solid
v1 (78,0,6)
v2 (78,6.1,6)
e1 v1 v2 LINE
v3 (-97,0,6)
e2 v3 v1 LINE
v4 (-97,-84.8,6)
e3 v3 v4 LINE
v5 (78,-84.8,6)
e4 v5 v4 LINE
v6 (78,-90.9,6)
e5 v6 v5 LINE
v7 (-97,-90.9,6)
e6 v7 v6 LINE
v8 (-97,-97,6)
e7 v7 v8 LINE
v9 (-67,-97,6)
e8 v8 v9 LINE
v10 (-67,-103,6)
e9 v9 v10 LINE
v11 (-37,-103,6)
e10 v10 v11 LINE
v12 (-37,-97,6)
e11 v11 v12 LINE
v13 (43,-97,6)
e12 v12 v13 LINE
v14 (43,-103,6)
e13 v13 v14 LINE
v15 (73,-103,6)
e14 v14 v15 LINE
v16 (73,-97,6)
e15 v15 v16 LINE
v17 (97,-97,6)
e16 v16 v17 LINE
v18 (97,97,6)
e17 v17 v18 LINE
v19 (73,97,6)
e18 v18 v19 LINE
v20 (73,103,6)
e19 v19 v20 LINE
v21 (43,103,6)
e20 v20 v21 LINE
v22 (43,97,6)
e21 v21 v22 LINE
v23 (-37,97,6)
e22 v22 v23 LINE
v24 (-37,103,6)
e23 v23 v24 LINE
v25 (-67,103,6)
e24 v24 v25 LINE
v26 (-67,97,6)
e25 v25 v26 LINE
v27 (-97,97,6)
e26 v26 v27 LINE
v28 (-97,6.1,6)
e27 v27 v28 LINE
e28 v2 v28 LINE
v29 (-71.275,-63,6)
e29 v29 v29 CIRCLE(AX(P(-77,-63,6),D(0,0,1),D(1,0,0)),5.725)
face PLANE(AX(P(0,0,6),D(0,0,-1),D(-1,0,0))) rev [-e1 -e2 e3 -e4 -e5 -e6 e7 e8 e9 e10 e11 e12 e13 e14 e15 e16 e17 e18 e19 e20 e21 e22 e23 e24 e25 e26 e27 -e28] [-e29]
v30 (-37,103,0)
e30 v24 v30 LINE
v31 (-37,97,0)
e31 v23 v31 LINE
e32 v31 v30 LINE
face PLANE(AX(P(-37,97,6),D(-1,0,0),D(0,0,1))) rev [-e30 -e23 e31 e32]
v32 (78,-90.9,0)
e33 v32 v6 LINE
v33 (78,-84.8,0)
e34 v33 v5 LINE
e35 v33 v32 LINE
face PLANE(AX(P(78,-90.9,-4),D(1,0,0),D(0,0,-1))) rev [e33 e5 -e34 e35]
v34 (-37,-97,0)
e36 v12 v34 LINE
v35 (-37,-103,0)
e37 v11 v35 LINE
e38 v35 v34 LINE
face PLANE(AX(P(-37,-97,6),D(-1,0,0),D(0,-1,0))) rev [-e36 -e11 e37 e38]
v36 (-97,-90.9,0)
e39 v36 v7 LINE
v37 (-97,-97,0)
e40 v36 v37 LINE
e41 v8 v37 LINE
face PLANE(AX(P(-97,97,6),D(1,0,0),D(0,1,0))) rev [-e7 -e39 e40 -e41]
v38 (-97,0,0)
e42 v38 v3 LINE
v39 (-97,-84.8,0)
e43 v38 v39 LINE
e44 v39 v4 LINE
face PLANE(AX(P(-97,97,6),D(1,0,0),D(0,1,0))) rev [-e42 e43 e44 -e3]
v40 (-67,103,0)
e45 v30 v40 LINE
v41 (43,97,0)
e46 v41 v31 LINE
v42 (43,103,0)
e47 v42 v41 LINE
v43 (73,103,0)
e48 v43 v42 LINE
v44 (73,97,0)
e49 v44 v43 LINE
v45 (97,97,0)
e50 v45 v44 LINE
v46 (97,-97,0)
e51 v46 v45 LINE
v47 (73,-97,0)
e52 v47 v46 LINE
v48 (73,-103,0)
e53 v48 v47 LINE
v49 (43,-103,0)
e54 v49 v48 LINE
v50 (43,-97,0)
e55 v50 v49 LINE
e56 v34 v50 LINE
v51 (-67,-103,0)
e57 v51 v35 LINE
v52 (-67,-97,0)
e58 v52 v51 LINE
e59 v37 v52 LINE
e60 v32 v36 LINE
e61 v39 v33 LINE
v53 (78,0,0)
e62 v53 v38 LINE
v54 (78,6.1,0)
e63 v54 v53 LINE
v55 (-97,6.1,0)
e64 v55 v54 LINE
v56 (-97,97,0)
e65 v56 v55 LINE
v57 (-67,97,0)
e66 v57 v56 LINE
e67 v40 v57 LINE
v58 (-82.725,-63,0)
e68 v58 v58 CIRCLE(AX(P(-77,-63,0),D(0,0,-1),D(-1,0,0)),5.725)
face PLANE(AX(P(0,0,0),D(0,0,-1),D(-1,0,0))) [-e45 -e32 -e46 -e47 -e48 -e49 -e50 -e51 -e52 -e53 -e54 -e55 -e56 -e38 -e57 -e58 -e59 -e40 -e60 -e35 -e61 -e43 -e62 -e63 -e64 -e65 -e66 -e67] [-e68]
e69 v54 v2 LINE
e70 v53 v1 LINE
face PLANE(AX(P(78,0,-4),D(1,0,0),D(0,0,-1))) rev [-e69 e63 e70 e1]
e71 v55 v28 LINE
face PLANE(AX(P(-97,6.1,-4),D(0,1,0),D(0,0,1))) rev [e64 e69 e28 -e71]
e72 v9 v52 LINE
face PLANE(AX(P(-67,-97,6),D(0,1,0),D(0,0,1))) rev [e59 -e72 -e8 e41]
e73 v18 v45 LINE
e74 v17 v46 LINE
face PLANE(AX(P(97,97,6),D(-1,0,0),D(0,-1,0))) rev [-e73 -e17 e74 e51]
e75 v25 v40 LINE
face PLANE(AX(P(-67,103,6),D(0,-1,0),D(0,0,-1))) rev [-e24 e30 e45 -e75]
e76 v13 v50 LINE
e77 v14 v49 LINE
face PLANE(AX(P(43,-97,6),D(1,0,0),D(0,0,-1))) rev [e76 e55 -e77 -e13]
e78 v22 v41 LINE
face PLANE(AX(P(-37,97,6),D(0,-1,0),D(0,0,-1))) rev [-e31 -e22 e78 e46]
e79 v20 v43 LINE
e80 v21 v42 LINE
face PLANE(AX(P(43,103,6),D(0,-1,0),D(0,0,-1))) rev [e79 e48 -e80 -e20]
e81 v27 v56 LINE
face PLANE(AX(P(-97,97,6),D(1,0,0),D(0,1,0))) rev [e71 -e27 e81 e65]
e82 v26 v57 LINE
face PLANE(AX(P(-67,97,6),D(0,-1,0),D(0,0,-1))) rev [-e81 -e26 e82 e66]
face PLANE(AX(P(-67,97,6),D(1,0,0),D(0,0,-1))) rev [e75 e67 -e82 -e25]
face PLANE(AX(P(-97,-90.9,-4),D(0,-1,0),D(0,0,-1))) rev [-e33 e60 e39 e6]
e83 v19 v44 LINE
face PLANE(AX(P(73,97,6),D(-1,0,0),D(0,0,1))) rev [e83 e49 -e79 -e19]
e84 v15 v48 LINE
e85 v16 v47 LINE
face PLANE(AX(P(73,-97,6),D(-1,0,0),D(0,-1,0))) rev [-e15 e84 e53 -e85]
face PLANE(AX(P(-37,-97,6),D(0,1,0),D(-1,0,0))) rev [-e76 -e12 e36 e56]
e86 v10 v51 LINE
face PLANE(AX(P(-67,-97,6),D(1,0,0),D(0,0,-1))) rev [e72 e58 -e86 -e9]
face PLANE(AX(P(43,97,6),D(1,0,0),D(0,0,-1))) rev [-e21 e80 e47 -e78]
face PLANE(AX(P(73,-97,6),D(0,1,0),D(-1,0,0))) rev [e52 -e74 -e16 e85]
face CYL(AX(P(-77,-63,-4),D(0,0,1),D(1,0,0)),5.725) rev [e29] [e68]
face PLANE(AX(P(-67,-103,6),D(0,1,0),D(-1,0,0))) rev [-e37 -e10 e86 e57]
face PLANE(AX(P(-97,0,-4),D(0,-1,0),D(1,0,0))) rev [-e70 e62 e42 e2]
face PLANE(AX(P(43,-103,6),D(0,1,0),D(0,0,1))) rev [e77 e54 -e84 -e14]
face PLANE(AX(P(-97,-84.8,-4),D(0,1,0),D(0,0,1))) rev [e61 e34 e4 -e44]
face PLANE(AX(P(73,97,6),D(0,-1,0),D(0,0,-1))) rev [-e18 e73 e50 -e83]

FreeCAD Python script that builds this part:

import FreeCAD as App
import Part
import Sketcher
from FreeCAD import Vector
Q = App.Units.Quantity

doc = App.newDocument("Part")
body = doc.addObject("PartDesign::Body", "Body")

# Sketch on XY plane
sketch1 = body.newObject("Sketcher::SketchObject", "Sketch")
sketch1.AttachmentSupport = (doc.getObject("XY_Plane"), [""])
sketch1.MapMode = "FlatFace"
sketch1.addGeometry(Part.LineSegment(Vector(-97, -97, 0), Vector(-67, -97, 0)), False)
sketch1.addGeometry(Part.LineSegment(Vector(-67, -97, 0), Vector(-67, -103, 0)), False)
sketch1.addGeometry(Part.LineSegment(Vector(-67, -103, 0), Vector(-37, -103, 0)), False)
sketch1.addGeometry(Part.LineSegment(Vector(-37, -103, 0), Vector(-37, -97, 0)), False)
sketch1.addGeometry(Part.LineSegment(Vector(-37, -97, 0), Vector(43, -97, 0)), False)
sketch1.addGeometry(Part.LineSegment(Vector(43, -97, 0), Vector(43, -103, 0)), False)
sketch1.addGeometry(Part.LineSegment(Vector(43, -103, 0), Vector(73, -103, 0)), False)
sketch1.addGeometry(Part.LineSegment(Vector(73, -103, 0), Vector(73, -97, 0)), False)
sketch1.addGeometry(Part.LineSegment(Vector(73, -97, 0), Vector(97, -97, 0)), False)
sketch1.addGeometry(Part.LineSegment(Vector(97, -97, 0), Vector(97, 97, 0)), False)
sketch1.addGeometry(Part.LineSegment(Vector(97, 97, 0), Vector(73, 97, 0)), False)
sketch1.addGeometry(Part.LineSegment(Vector(73, 97, 0), Vector(73, 103, 0)), False)
sketch1.addGeometry(Part.LineSegment(Vector(73, 103, 0), Vector(43, 103, 0)), False)
sketch1.addGeometry(Part.LineSegment(Vector(43, 103, 0), Vector(43, 97, 0)), False)
sketch1.addGeometry(Part.LineSegment(Vector(43, 97, 0), Vector(-37, 97, 0)), False)
sketch1.addGeometry(Part.LineSegment(Vector(-37, 97, 0), Vector(-37, 103, 0)), False)
sketch1.addGeometry(Part.LineSegment(Vector(-37, 103, 0), Vector(-67, 103, 0)), False)
sketch1.addGeometry(Part.LineSegment(Vector(-67, 103, 0), Vector(-67, 97, 0)), False)
sketch1.addGeometry(Part.LineSegment(Vector(-67, 97, 0), Vector(-97, 97, 0)), False)
sketch1.addGeometry(Part.LineSegment(Vector(-97, 97, 0), Vector(-97, -97, 0)), False)
sketch1.addConstraint(Sketcher.Constraint("Coincident", 0, 2, 1, 1))
sketch1.addConstraint(Sketcher.Constraint("Coincident", 1, 2, 2, 1))
sketch1.addConstraint(Sketcher.Constraint("Coincident", 2, 2, 3, 1))
sketch1.addConstraint(Sketcher.Constraint("Coincident", 3, 2, 4, 1))
sketch1.addConstraint(Sketcher.Constraint("Coincident", 4, 2, 5, 1))
sketch1.addConstraint(Sketcher.Constraint("Coincident", 5, 2, 6, 1))
sketch1.addConstraint(Sketcher.Constraint("Coincident", 6, 2, 7, 1))
sketch1.addConstraint(Sketcher.Constraint("Coincident", 7, 2, 8, 1))
sketch1.addConstraint(Sketcher.Constraint("Coincident", 8, 2, 9, 1))
sketch1.addConstraint(Sketcher.Constraint("Coincident", 9, 2, 10, 1))
sketch1.addConstraint(Sketcher.Constraint("Coincident", 10, 2, 11, 1))
sketch1.addConstraint(Sketcher.Constraint("Coincident", 11, 2, 12, 1))
sketch1.addConstraint(Sketcher.Constraint("Coincident", 12, 2, 13, 1))
sketch1.addConstraint(Sketcher.Constraint("Coincident", 13, 2, 14, 1))
sketch1.addConstraint(Sketcher.Constraint("Coincident", 14, 2, 15, 1))
sketch1.addConstraint(Sketcher.Constraint("Coincident", 15, 2, 16, 1))
sketch1.addConstraint(Sketcher.Constraint("Coincident", 16, 2, 17, 1))
sketch1.addConstraint(Sketcher.Constraint("Coincident", 17, 2, 18, 1))
sketch1.addConstraint(Sketcher.Constraint("Coincident", 18, 2, 19, 1))
sketch1.addConstraint(Sketcher.Constraint("Coincident", 19, 2, 0, 1))
sketch1.addConstraint(Sketcher.Constraint("Horizontal", 0))
sketch1.addConstraint(Sketcher.Constraint("Vertical", 1))
sketch1.addConstraint(Sketcher.Constraint("Horizontal", 2))
sketch1.addConstraint(Sketcher.Constraint("Vertical", 3))
sketch1.addConstraint(Sketcher.Constraint("Horizontal", 4))
sketch1.addConstraint(Sketcher.Constraint("Vertical", 5))
sketch1.addConstraint(Sketcher.Constraint("Horizontal", 6))
sketch1.addConstraint(Sketcher.Constraint("Vertical", 7))
sketch1.addConstraint(Sketcher.Constraint("Horizontal", 8))
sketch1.addConstraint(Sketcher.Constraint("Vertical", 9))
sketch1.addConstraint(Sketcher.Constraint("Horizontal", 10))
sketch1.addConstraint(Sketcher.Constraint("Vertical", 11))
sketch1.addConstraint(Sketcher.Constraint("Horizontal", 12))
sketch1.addConstraint(Sketcher.Constraint("Vertical", 13))
sketch1.addConstraint(Sketcher.Constraint("Horizontal", 14))
sketch1.addConstraint(Sketcher.Constraint("Vertical", 15))
sketch1.addConstraint(Sketcher.Constraint("Horizontal", 16))
sketch1.addConstraint(Sketcher.Constraint("Vertical", 17))
sketch1.addConstraint(Sketcher.Constraint("Horizontal", 18))
sketch1.addConstraint(Sketcher.Constraint("Vertical", 19))
sketch1.addConstraint(Sketcher.Constraint("Symmetric", 8, 2, 18, 2, -1, 1))
sketch1.addConstraint(Sketcher.Constraint("Symmetric", 7, 2, 10, 2, -1))
sketch1.addConstraint(Sketcher.Constraint("Symmetric", 5, 2, 12, 2, -1))
sketch1.addConstraint(Sketcher.Constraint("Symmetric", 3, 2, 14, 2, -1))
sketch1.addConstraint(Sketcher.Constraint("Symmetric", 1, 2, 16, 2, -1))
sketch1.addConstraint(Sketcher.Constraint("Horizontal", 0, 2, 3, 2))
sketch1.addConstraint(Sketcher.Constraint("Horizontal", 2, 2, 5, 2))
sketch1.addConstraint(Sketcher.Constraint("Horizontal", 4, 2, 7, 2))
sketch1.addConstraint(Sketcher.Constraint("Equal", 0, 2))
sketch1.addConstraint(Sketcher.Constraint("Equal", 2, 6))
sketch1.addConstraint(Sketcher.Constraint("DistanceX", 0, 1, 0, 2, Q("30 mm")))
sketch1.addConstraint(Sketcher.Constraint("DistanceX", 4, 1, 4, 2, Q("80 mm")))
sketch1.addConstraint(Sketcher.Constraint("DistanceX", 8, 1, 8, 2, Q("24 mm")))
sketch1.addConstraint(Sketcher.Constraint("DistanceY", 1, 2, 1, 1, Q("6 mm")))
sketch1.addConstraint(Sketcher.Constraint("DistanceY", 9, 1, 9, 2, Q("194 mm")))
pad1 = body.newObject("PartDesign::Pad", "Pad")
pad1.Profile = sketch1
pad1.Length = 6

# Sketch on XY plane
sketch2 = body.newObject("Sketcher::SketchObject", "Sketch001")
sketch2.AttachmentSupport = (doc.getObject("XY_Plane"), [""])
sketch2.MapMode = "FlatFace"
sketch2.AttachmentOffset = App.Placement(Vector(0, 0, 6), App.Rotation())
sketch2.addGeometry(Part.LineSegment(Vector(-97, 6, 0), Vector(-97, 0, 0)), False)
sketch2.addGeometry(Part.LineSegment(Vector(-97, 0, 0), Vector(78, 0, 0)), False)
sketch2.addGeometry(Part.LineSegment(Vector(78, 0, 0), Vector(78, 6, 0)), False)
sketch2.addGeometry(Part.LineSegment(Vector(78, 6, 0), Vector(-97, 6, 0)), False)
sketch2.addGeometry(Part.LineSegment(Vector(-97, -85, 0), Vector(-97, -91, 0)), False)
sketch2.addGeometry(Part.LineSegment(Vector(-97, -91, 0), Vector(78, -91, 0)), False)
sketch2.addGeometry(Part.LineSegment(Vector(78, -91, 0), Vector(78, -85, 0)), False)
sketch2.addGeometry(Part.LineSegment(Vector(78, -85, 0), Vector(-97, -85, 0)), False)
sketch2.addConstraint(Sketcher.Constraint("Coincident", 0, 2, 1, 1))
sketch2.addConstraint(Sketcher.Constraint("Coincident", 1, 2, 2, 1))
sketch2.addConstraint(Sketcher.Constraint("Coincident", 2, 2, 3, 1))
sketch2.addConstraint(Sketcher.Constraint("Coincident", 3, 2, 0, 1))
sketch2.addConstraint(Sketcher.Constraint("Coincident", 4, 2, 5, 1))
sketch2.addConstraint(Sketcher.Constraint("Coincident", 5, 2, 6, 1))
sketch2.addConstraint(Sketcher.Constraint("Coincident", 6, 2, 7, 1))
sketch2.addConstraint(Sketcher.Constraint("Coincident", 7, 2, 4, 1))
sketch2.addConstraint(Sketcher.Constraint("Vertical", 0))
sketch2.addConstraint(Sketcher.Constraint("Horizontal", 1))
sketch2.addConstraint(Sketcher.Constraint("Vertical", 2))
sketch2.addConstraint(Sketcher.Constraint("Horizontal", 3))
sketch2.addConstraint(Sketcher.Constraint("Vertical", 4))
sketch2.addConstraint(Sketcher.Constraint("Horizontal", 5))
sketch2.addConstraint(Sketcher.Constraint("Vertical", 6))
sketch2.addConstraint(Sketcher.Constraint("Horizontal", 7))
sketch2.addConstraint(Sketcher.Constraint("PointOnObject", 0, 2, -1))
sketch2.addConstraint(Sketcher.Constraint("Vertical", 3, 2, 4, 2))
sketch2.addConstraint(Sketcher.Constraint("Vertical", 2, 2, 5, 2))
sketch2.addConstraint(Sketcher.Constraint("Equal", 2, 4))
sketch2.addConstraint(Sketcher.Constraint("DistanceX", 1, 1, 1, 2, Q("175 mm")))
sketch2.addConstraint(Sketcher.Constraint("DistanceY", 0, 2, 0, 1, Q("6.1 mm")))
sketch2.addConstraint(Sketcher.Constraint("DistanceX", 0, 2, -1, 1, Q("97 mm")))
sketch2.addConstraint(Sketcher.Constraint("DistanceY", 4, 2, 3, 2, Q("97 mm")))
pocket1 = body.newObject("PartDesign::Pocket", "Pocket")
pocket1.Profile = sketch2
pocket1.Length = 10

# Sketch on XY plane
sketch3 = body.newObject("Sketcher::SketchObject", "Sketch002")
sketch3.AttachmentSupport = (doc.getObject("XY_Plane"), [""])
sketch3.MapMode = "FlatFace"
sketch3.AttachmentOffset = App.Placement(Vector(0, 0, 6), App.Rotation())
sketch3.addGeometry(Part.Circle(Vector(-77, -63, 0), Vector(0, 0, 1), 6), False)
sketch3.addConstraint(Sketcher.Constraint("Diameter", 0, Q("11.45 mm")))
sketch3.addConstraint(Sketcher.Constraint("DistanceX", 0, 3, -1, 1, Q("77 mm")))
sketch3.addConstraint(Sketcher.Constraint("DistanceY", 0, 3, -1, 1, Q("63 mm")))
pocket2 = body.newObject("PartDesign::Pocket", "Pocket001")
pocket2.Profile = sketch3
pocket2.Length = 10

doc.recompute()
